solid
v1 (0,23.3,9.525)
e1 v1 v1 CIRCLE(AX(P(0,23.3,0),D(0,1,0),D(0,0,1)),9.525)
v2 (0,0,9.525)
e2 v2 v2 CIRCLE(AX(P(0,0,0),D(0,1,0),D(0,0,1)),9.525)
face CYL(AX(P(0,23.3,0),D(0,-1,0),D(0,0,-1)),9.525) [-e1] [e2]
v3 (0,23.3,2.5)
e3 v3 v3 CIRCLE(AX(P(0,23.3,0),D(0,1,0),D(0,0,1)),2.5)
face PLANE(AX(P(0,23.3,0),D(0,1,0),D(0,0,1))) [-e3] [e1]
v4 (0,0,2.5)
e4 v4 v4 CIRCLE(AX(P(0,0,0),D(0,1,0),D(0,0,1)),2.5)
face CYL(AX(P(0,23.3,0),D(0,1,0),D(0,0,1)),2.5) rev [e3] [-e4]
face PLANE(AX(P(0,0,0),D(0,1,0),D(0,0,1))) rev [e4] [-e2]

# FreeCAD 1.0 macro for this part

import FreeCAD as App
import Part
import Sketcher

V = App.Vector

doc = App.newDocument("Part")
body = doc.addObject("PartDesign::Body", "Body")

# Sketch on XZ plane
sketch1 = body.newObject("Sketcher::SketchObject", "Sketch")
sketch1.AttachmentSupport = (doc.getObject("XZ_Plane"), [""])
sketch1.MapMode = "FlatFace"
sketch1.addGeometry(Part.Circle(V(0, 0, 0), V(0, 0, 1), 10), False)
sketch1.addConstraint([
    Sketcher.Constraint("Coincident", 0, 3, -1, 1),
    Sketcher.Constraint("Diameter", 0, 19.05),
])
pad1 = body.newObject("PartDesign::Pad", "Pad")
pad1.Profile = sketch1
pad1.Length = 23.3
pad1.Reversed = True

# Sketch on XZ plane
sketch2 = body.newObject("Sketcher::SketchObject", "Sketch001")
sketch2.AttachmentSupport = (doc.getObject("XZ_Plane"), [""])
sketch2.MapMode = "FlatFace"
sketch2.AttachmentOffset = App.Placement(V(0, 0, -23.3), App.Rotation())
sketch2.addGeometry(Part.Circle(V(0, 0, 0), V(0, 0, 1), 2.5), False)
sketch2.addConstraint([
    Sketcher.Constraint("Coincident", 0, 3, -1, 1),
    Sketcher.Constraint("Diameter", 0, 5.0),
])
doc.recompute()
hole = body.newObject("PartDesign::Hole", "Hole")
hole.Profile = sketch2
hole.ThreadType = "None"
hole.Diameter = 5
hole.DepthType = "ThroughAll"
hole.Reversed = True

doc.recompute()
